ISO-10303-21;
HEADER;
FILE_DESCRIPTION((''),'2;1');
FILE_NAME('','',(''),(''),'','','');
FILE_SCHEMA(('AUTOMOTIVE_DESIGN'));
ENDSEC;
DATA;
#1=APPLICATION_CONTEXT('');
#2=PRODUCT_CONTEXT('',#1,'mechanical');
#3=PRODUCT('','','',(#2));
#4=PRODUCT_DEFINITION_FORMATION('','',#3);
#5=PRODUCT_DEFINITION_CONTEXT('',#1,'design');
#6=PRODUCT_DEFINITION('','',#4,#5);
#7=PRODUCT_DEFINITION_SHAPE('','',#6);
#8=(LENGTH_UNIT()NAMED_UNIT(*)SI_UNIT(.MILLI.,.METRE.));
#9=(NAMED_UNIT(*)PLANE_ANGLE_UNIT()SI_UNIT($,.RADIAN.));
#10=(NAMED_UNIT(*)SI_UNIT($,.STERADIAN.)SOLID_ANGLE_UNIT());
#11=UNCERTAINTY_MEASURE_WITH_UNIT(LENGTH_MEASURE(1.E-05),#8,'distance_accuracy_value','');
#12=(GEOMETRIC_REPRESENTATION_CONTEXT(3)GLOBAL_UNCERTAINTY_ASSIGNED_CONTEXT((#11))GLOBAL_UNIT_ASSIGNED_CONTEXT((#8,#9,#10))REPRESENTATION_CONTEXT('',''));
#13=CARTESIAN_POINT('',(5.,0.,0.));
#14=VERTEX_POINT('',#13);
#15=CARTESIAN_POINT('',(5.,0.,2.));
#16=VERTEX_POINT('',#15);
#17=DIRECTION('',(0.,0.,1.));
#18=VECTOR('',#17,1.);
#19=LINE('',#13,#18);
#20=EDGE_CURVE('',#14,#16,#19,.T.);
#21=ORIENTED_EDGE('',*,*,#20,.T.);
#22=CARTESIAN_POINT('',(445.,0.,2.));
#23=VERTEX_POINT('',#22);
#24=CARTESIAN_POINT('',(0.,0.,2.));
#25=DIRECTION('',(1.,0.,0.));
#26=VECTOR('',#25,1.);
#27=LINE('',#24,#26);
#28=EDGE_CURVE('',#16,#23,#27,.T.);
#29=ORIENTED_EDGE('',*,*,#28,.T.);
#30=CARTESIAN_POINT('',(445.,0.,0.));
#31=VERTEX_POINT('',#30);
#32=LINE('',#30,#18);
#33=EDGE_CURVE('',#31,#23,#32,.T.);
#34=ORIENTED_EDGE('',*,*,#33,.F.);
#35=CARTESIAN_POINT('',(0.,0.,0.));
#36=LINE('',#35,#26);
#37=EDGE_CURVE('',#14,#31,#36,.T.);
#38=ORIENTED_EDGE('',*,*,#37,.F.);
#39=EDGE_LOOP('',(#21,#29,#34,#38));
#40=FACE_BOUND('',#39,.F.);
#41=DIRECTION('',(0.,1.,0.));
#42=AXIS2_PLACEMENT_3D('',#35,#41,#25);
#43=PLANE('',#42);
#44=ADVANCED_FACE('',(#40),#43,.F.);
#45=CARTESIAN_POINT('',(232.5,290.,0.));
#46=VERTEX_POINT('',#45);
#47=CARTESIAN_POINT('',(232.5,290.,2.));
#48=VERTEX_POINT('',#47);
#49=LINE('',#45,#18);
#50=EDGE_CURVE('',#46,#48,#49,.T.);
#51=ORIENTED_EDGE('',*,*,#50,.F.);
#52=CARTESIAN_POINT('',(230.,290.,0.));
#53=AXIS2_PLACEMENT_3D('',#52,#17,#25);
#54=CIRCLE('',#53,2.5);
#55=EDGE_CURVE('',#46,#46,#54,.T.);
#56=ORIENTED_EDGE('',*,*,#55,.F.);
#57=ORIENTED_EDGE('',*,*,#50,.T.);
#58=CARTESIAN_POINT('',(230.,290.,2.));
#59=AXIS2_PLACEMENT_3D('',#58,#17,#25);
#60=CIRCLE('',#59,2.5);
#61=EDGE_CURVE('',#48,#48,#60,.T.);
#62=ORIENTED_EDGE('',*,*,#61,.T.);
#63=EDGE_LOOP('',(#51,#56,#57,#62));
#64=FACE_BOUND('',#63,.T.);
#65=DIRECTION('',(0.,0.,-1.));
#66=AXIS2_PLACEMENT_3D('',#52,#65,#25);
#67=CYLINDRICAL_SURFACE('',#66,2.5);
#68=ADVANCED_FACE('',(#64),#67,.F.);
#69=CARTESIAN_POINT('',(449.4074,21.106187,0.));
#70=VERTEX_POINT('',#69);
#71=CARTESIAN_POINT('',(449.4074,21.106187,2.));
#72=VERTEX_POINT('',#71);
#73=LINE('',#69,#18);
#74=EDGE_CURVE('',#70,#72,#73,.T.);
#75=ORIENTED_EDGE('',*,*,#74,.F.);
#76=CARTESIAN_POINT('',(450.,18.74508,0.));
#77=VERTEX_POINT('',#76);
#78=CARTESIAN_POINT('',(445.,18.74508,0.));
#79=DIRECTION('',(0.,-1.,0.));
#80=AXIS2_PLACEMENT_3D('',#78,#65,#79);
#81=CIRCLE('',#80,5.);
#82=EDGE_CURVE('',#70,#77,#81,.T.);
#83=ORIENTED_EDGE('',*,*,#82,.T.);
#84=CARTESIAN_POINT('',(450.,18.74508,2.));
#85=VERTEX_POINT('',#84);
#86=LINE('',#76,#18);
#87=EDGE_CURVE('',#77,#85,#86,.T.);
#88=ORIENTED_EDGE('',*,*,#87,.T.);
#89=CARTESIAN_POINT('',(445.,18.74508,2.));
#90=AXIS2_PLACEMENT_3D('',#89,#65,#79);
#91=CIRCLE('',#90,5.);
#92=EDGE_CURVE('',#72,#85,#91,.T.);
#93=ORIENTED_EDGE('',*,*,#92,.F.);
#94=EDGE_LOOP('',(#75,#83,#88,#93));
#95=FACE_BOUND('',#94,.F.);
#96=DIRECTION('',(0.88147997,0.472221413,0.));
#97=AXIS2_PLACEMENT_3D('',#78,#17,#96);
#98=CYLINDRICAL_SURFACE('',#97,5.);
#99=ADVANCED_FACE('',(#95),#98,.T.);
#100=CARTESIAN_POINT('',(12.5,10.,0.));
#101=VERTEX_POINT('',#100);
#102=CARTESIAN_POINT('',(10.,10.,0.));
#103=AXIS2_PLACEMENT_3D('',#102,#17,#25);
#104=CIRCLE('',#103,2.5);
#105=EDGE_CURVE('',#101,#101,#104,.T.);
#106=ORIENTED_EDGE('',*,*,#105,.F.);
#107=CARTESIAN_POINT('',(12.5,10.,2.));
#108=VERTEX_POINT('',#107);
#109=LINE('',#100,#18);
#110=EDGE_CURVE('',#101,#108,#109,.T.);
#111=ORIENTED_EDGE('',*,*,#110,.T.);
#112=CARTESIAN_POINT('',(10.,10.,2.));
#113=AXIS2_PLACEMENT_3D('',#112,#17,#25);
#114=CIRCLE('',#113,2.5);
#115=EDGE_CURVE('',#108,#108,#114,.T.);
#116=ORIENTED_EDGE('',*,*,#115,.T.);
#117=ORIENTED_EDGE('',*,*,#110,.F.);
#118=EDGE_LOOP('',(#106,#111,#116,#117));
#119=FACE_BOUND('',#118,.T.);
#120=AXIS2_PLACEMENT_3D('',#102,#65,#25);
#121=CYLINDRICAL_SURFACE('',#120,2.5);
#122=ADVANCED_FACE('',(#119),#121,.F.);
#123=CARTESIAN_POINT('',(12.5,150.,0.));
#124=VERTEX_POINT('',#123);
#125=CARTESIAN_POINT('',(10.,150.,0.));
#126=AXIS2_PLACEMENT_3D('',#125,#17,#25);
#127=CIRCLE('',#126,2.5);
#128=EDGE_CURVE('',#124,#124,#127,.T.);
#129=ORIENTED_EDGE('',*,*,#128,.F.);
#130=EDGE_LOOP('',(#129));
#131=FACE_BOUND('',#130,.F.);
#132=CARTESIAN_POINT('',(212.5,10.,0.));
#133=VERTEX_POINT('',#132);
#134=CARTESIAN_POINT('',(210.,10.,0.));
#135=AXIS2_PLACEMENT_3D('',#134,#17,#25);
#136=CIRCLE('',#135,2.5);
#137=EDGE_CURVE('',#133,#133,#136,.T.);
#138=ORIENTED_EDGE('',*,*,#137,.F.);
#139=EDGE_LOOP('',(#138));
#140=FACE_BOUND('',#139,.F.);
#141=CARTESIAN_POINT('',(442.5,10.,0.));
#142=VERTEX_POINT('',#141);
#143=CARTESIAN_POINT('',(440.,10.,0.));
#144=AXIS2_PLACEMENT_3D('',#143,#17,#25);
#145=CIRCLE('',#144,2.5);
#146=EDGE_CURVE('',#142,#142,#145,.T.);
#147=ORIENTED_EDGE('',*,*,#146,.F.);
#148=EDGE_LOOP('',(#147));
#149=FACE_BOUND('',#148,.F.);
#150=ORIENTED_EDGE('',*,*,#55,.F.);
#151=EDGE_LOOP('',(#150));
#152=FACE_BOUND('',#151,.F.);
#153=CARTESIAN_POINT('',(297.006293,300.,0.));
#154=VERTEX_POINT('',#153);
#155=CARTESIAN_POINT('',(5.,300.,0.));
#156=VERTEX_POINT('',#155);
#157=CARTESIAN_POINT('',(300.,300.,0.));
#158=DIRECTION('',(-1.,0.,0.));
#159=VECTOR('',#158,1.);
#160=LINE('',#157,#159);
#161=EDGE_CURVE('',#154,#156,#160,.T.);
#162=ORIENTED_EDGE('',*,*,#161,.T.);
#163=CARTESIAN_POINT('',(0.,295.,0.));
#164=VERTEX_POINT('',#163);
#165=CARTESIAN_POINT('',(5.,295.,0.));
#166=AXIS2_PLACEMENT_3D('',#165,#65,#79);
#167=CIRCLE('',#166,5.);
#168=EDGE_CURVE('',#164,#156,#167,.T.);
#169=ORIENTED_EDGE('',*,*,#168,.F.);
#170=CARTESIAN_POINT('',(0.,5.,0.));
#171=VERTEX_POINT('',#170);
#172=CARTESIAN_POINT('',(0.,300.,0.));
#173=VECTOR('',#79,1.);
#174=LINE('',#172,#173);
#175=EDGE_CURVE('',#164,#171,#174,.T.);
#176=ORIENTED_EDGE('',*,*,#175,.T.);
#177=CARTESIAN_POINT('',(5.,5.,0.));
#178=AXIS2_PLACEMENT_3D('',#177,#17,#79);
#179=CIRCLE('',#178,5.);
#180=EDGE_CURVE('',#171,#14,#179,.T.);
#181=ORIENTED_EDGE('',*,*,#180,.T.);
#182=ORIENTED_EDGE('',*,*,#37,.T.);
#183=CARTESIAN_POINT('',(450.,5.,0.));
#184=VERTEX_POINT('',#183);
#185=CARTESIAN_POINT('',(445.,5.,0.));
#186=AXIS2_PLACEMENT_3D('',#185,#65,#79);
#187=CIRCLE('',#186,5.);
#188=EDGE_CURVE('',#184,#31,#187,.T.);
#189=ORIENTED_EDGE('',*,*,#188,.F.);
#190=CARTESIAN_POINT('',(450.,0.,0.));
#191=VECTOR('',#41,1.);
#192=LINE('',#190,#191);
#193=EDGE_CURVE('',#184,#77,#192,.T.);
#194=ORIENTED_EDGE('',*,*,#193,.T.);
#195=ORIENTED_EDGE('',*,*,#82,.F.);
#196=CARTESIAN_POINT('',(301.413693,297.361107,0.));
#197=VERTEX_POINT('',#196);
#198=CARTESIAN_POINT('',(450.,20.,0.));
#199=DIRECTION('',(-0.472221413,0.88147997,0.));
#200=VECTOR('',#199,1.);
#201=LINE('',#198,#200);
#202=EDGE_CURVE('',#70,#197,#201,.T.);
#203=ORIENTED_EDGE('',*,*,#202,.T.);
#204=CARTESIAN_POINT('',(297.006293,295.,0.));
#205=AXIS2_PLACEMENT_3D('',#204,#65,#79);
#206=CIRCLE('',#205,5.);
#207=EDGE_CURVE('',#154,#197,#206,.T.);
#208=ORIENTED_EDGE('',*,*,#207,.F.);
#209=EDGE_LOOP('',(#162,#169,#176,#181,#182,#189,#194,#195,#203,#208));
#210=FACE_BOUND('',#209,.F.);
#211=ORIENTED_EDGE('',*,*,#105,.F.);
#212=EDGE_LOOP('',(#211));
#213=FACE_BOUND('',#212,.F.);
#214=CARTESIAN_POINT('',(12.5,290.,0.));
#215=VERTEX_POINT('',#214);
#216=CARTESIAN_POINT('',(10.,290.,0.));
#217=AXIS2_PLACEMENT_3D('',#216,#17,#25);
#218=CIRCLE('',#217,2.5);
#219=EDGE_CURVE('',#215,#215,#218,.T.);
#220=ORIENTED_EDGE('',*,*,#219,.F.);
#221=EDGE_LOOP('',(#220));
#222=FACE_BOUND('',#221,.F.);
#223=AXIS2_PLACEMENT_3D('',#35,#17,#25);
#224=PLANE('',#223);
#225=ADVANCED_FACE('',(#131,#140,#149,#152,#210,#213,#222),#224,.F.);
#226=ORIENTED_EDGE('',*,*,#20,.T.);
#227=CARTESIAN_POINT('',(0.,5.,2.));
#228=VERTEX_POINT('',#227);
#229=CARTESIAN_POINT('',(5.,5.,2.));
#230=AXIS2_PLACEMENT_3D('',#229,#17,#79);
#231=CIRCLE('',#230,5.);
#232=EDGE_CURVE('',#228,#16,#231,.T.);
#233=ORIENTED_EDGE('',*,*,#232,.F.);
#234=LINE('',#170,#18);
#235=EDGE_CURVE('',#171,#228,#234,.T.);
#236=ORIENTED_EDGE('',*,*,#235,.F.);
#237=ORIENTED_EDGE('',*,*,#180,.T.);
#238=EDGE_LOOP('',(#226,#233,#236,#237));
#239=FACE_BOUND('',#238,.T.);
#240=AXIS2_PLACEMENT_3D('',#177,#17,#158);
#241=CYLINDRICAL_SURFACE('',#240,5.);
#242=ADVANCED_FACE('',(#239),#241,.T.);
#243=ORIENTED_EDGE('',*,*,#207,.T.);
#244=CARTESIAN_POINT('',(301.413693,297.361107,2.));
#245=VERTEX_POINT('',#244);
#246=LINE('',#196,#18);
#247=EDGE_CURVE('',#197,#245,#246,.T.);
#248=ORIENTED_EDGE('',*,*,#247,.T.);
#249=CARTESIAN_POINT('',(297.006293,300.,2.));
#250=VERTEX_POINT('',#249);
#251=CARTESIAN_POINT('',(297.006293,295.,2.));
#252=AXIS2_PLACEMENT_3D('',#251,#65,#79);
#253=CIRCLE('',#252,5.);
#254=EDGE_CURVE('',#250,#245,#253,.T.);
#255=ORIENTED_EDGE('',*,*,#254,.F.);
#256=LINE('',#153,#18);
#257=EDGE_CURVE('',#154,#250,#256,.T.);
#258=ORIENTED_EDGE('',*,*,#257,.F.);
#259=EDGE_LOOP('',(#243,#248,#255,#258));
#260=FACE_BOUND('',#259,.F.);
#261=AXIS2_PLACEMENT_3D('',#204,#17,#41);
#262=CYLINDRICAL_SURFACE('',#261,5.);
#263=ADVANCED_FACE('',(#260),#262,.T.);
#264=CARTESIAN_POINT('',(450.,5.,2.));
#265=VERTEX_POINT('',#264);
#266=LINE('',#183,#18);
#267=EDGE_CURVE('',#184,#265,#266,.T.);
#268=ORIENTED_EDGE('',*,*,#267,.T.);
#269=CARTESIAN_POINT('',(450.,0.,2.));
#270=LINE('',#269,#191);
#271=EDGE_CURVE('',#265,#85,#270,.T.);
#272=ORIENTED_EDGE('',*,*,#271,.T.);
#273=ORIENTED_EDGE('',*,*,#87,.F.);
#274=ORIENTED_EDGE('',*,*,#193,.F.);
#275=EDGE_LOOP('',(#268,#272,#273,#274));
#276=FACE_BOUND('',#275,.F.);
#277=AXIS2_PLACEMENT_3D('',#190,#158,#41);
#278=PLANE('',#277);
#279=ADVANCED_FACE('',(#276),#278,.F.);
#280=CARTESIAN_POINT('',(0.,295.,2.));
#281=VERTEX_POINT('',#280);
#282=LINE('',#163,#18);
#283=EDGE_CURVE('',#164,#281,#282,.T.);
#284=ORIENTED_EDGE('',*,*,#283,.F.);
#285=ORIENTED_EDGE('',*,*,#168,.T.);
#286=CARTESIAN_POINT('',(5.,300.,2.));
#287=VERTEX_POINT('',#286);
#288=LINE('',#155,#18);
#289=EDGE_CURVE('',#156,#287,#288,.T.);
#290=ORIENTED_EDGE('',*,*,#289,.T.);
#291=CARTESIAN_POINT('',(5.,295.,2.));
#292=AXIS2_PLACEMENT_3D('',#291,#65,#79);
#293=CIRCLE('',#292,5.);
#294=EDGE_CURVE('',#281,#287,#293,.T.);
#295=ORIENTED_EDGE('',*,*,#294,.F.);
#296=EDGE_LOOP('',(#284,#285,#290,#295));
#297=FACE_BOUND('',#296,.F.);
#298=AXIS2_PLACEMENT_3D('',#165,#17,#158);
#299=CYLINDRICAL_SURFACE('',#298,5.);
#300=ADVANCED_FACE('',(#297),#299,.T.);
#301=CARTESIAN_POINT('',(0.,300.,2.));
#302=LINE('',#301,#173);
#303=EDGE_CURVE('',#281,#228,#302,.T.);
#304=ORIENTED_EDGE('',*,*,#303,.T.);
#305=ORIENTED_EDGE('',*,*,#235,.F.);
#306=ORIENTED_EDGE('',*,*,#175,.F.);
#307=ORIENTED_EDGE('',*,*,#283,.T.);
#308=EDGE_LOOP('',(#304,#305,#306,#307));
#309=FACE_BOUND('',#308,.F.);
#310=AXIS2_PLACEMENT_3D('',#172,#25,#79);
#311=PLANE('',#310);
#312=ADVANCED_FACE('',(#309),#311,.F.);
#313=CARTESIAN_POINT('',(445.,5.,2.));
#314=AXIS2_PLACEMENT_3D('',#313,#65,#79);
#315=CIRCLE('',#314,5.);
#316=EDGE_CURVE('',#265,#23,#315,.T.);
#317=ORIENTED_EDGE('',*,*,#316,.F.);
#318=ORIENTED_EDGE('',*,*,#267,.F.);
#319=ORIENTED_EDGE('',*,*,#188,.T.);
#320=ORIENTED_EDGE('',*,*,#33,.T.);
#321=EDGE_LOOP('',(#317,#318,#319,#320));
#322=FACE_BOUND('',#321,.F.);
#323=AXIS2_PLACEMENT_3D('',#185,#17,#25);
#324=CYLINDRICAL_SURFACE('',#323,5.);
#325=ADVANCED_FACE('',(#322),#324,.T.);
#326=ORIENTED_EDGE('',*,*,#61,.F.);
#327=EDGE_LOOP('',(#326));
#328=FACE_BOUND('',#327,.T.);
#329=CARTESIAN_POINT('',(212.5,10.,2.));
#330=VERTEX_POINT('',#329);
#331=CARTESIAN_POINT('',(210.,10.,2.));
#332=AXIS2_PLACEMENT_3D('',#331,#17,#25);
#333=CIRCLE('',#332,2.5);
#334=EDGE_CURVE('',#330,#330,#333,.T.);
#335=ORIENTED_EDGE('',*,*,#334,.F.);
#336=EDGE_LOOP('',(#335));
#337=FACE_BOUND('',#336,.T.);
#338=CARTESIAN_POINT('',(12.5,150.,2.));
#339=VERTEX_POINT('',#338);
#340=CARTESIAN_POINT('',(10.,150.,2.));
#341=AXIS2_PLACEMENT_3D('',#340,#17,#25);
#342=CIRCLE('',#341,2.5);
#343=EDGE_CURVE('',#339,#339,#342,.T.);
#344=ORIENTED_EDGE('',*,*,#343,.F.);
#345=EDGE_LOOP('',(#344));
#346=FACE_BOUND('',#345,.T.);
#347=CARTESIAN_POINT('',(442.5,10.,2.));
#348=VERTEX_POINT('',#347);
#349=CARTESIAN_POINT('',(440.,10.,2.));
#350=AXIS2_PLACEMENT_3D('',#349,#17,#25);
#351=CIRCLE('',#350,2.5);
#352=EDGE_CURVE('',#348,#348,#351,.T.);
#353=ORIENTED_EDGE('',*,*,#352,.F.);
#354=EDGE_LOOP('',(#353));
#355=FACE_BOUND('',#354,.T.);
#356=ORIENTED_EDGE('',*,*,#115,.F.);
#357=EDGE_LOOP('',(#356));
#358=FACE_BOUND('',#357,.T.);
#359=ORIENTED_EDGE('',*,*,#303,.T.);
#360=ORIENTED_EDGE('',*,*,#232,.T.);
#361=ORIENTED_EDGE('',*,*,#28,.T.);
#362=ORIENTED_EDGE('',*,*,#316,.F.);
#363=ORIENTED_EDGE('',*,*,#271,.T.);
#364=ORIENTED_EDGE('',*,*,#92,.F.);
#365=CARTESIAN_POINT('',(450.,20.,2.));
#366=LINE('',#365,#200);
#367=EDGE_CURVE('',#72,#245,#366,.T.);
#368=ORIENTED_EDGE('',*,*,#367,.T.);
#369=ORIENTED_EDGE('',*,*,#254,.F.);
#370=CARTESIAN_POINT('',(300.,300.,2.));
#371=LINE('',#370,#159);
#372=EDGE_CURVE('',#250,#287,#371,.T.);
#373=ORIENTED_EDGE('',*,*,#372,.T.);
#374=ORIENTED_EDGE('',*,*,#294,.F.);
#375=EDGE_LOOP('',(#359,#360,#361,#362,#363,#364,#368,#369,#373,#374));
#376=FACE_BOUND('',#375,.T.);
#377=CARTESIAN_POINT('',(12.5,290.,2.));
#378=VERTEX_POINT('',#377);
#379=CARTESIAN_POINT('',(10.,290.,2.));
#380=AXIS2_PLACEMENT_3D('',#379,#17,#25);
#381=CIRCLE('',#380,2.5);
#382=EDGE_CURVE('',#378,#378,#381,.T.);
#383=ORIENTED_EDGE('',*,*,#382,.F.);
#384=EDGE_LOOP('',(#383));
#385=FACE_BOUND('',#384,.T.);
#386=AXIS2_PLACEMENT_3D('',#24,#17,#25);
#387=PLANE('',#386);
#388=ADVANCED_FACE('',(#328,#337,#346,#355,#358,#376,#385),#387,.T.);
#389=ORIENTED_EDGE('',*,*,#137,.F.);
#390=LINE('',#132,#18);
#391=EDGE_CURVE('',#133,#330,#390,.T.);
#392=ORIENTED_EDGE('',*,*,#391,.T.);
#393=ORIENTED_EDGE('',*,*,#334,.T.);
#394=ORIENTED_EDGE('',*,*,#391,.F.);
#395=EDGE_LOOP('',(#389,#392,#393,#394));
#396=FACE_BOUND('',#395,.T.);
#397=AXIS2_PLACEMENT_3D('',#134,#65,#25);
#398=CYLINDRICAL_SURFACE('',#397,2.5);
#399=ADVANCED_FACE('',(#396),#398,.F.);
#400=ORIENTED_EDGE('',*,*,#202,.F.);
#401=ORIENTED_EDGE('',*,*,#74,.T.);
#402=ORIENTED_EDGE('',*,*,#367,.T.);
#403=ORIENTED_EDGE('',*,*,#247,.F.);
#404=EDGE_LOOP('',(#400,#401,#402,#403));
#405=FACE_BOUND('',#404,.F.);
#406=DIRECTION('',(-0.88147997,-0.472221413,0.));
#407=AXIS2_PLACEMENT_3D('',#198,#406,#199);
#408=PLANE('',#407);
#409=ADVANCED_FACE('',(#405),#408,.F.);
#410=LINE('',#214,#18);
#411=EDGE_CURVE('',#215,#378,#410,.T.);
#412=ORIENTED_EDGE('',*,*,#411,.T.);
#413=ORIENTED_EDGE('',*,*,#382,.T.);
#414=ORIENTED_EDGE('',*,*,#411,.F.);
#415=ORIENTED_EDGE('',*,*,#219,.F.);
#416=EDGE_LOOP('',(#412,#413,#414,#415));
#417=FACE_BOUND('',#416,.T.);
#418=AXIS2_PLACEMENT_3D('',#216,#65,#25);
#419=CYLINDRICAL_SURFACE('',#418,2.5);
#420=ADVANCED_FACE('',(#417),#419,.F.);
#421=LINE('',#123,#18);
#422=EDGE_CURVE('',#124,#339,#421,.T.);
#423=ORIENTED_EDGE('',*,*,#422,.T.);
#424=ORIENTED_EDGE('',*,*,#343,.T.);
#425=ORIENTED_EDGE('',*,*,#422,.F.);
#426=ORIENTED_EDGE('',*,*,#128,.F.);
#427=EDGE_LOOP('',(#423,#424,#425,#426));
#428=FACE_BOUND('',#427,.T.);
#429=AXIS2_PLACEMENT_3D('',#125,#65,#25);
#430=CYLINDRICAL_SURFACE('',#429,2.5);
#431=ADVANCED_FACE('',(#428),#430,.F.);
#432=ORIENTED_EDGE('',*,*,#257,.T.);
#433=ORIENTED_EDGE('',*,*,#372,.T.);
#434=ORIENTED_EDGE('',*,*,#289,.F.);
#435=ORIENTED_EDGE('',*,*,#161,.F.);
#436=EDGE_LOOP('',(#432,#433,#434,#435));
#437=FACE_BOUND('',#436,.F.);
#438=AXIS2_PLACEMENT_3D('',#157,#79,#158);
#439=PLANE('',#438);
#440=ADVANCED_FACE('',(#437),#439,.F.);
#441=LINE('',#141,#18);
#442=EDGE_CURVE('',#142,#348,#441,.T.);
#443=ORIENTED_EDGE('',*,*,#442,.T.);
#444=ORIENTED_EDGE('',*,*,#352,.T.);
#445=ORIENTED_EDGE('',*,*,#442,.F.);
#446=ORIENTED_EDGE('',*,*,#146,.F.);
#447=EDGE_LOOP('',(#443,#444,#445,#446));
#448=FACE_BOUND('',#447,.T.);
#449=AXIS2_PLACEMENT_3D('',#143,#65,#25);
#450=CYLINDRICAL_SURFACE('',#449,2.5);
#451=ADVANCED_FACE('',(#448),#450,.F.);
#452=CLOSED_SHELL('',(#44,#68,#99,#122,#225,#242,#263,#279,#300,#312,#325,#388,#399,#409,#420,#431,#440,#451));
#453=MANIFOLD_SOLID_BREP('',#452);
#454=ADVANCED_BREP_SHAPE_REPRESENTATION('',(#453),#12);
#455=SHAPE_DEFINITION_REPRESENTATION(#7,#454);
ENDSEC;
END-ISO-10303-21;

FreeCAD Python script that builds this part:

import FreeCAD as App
import Part
import Sketcher

V = App.Vector


def edges_at(feature, points):
    """Names of the edges that pass closest to the given points."""
    edges = feature.Shape.Edges
    near = lambda p: min(range(len(edges)), key=lambda i: edges[i].distToShape(Part.Vertex(*p))[0])
    return sorted({f"Edge{near(p) + 1}" for p in points})


def add_polygon(sketch, points):
    """Adds a closed chain of lines whose ends are joined by coincident constraints."""
    first, n = sketch.GeometryCount, len(points)
    for a, b in zip(points, points[1:] + points[:1]):
        sketch.addGeometry(Part.LineSegment(App.Vector(*a, 0), App.Vector(*b, 0)), False)
    for i in range(n):
        sketch.addConstraint(Sketcher.Constraint("Coincident", first + i, 2, first + (i + 1) % n, 1))

doc = App.newDocument("Part")
body = doc.addObject("PartDesign::Body", "Body")

# Sketch on XY plane
sketch1 = doc.addObject("Sketcher::SketchObject", "Sketch")
body.addObject(sketch1)
sketch1.AttachmentSupport = (doc.XY_Plane, [""])
sketch1.MapMode = "FlatFace"
add_polygon(sketch1, [(0, 300), (0, 0), (450, 0), (450, 20), (300, 300)])  # lines 0-4
sketch1.addGeometry(Part.Circle(V(10, 10, 0), V(0, 0, 1), 2.5), False)  # 5
sketch1.addGeometry(Part.Circle(V(210, 10, 0), V(0, 0, 1), 2.5), False)  # 6
sketch1.addGeometry(Part.Circle(V(440, 10, 0), V(0, 0, 1), 2.5), False)  # 7
sketch1.addGeometry(Part.Circle(V(10, 150, 0), V(0, 0, 1), 2.5), False)  # 8
sketch1.addGeometry(Part.Circle(V(10, 290, 0), V(0, 0, 1), 2.5), False)  # 9
sketch1.addGeometry(Part.Circle(V(230, 290, 0), V(0, 0, 1), 2.5), False)  # 10
sketch1.addConstraint(Sketcher.Constraint("Vertical", 0))
sketch1.addConstraint(Sketcher.Constraint("Horizontal", 1))
sketch1.addConstraint(Sketcher.Constraint("Vertical", 2))
sketch1.addConstraint(Sketcher.Constraint("Horizontal", 4))
sketch1.addConstraint(Sketcher.Constraint("Coincident", 0, 2, -1, 1))
sketch1.addConstraint(Sketcher.Constraint("Equal", 5, 6))
sketch1.addConstraint(Sketcher.Constraint("Equal", 6, 7))
sketch1.addConstraint(Sketcher.Constraint("Equal", 7, 8))
sketch1.addConstraint(Sketcher.Constraint("Equal", 8, 9))
sketch1.addConstraint(Sketcher.Constraint("Equal", 9, 10))
sketch1.addConstraint(Sketcher.Constraint("Horizontal", 5, 3, 6, 3))
sketch1.addConstraint(Sketcher.Constraint("Horizontal", 6, 3, 7, 3))
sketch1.addConstraint(Sketcher.Constraint("Horizontal", 9, 3, 10, 3))
sketch1.addConstraint(Sketcher.Constraint("Vertical", 5, 3, 8, 3))
sketch1.addConstraint(Sketcher.Constraint("Vertical", 8, 3, 9, 3))
sketch1.addConstraint(Sketcher.Constraint("Equal", 4, 0))
sketch1.addConstraint(Sketcher.Constraint("Diameter", 5, 5.0))
sketch1.addConstraint(Sketcher.Constraint("DistanceX", 1, 1, 1, 2, 450.0))
sketch1.addConstraint(Sketcher.Constraint("DistanceX", 4, 2, 4, 1, 300.0))
sketch1.addConstraint(Sketcher.Constraint("DistanceY", 2, 1, 2, 2, 20.0))
sketch1.addConstraint(Sketcher.Constraint("DistanceX", -1, 1, 5, 3, 10.0))
sketch1.addConstraint(Sketcher.Constraint("DistanceY", -1, 1, 5, 3, 10.0))
sketch1.addConstraint(Sketcher.Constraint("DistanceX", 5, 3, 6, 3, 200.0))
sketch1.addConstraint(Sketcher.Constraint("DistanceX", 9, 3, 10, 3, 220.0))
sketch1.addConstraint(Sketcher.Constraint("DistanceX", 7, 3, 1, 2, 10.0))
sketch1.addConstraint(Sketcher.Constraint("DistanceY", 10, 3, 3, 2, 10.0))
sketch1.addConstraint(Sketcher.Constraint("DistanceY", -1, 1, 8, 3, 150.0))
pad1 = doc.addObject("PartDesign::Pad", "Pad")
body.addObject(pad1)
pad1.Profile = sketch1
pad1.Length = 2
doc.recompute()

fillet = doc.addObject("PartDesign::Fillet", "Fillet")
body.addObject(fillet)
fillet.Base = (pad1, edges_at(pad1, [
    (450, 0, 1),
    (450, 20, 1),
    (0, 0, 1),
    (300, 300, 1),
    (0, 300, 1),
]))
fillet.Radius = 5

doc.recompute()
